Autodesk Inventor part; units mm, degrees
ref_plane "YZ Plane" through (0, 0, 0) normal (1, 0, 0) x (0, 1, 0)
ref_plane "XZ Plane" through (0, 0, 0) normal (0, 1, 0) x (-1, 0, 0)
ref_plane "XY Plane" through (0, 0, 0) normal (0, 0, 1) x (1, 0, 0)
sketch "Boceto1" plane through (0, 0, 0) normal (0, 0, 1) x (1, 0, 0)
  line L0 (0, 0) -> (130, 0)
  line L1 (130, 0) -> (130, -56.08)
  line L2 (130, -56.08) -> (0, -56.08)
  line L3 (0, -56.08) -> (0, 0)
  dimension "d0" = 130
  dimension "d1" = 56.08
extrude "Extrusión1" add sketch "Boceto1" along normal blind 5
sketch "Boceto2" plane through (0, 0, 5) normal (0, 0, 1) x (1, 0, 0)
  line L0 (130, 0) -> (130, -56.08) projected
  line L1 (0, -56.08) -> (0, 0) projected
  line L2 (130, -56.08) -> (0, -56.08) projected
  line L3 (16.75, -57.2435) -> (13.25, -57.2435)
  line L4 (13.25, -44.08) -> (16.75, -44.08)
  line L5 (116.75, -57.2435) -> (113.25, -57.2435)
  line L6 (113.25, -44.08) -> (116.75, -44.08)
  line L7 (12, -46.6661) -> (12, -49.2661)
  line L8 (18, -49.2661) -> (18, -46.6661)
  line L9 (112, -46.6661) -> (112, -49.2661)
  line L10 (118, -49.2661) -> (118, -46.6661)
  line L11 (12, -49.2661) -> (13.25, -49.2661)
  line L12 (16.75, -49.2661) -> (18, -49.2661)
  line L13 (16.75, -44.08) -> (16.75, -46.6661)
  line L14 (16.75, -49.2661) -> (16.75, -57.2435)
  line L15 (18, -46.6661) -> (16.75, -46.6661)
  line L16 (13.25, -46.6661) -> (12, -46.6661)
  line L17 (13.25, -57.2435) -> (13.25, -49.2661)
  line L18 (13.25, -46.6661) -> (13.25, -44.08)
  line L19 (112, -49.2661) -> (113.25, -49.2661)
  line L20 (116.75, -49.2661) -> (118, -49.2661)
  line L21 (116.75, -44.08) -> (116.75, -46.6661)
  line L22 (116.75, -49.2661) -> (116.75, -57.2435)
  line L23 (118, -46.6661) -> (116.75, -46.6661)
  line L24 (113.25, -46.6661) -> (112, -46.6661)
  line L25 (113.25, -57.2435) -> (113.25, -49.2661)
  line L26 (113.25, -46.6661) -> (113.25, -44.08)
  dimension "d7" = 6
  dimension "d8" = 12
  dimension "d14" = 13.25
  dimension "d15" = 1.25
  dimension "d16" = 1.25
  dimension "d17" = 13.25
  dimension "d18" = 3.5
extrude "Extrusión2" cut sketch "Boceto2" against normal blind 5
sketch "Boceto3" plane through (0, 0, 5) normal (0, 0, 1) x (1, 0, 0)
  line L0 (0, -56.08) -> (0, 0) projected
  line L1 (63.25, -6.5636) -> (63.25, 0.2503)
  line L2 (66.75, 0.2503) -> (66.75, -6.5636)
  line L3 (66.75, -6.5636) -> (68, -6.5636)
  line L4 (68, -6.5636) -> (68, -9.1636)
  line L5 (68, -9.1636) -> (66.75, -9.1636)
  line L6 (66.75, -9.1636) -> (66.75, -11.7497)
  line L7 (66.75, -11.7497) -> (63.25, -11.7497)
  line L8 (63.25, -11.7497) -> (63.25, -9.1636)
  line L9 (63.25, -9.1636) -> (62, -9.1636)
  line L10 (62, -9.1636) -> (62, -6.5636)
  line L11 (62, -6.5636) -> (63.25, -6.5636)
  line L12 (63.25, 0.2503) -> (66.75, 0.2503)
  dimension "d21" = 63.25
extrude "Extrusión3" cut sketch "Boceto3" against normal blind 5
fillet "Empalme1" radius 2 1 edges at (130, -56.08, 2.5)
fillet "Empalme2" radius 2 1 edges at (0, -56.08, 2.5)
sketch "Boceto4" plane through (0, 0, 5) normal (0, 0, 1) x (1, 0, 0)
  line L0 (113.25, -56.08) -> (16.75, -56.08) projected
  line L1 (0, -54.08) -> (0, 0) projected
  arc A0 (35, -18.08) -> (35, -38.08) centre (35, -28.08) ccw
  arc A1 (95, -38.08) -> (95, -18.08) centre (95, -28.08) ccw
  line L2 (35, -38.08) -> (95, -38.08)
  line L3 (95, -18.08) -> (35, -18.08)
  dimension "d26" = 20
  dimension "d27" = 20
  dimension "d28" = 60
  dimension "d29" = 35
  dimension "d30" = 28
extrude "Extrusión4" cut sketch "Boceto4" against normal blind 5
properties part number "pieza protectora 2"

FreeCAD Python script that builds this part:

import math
import FreeCAD as App
import Part
import Sketcher
from FreeCAD import Vector
Q = App.Units.Quantity


def edges_at(feature, points):
    """Names of the edges that pass closest to the given points."""
    edges = feature.Shape.Edges
    near = lambda p: min(range(len(edges)), key=lambda i: edges[i].distToShape(Part.Vertex(*p))[0])
    return sorted({f"Edge{near(p) + 1}" for p in points})

doc = App.newDocument("Part")
body = doc.addObject("PartDesign::Body", "Body")

# Sketch on XY plane
sketch1 = body.newObject("Sketcher::SketchObject", "Sketch")
sketch1.AttachmentSupport = (doc.getObject("XY_Plane"), [""])
sketch1.MapMode = "FlatFace"
sketch1.addGeometry([
    Part.LineSegment(Vector(130, 0, 0), Vector(0, 0, 0)),
    Part.LineSegment(Vector(0, 0, 0), Vector(0, -56, 0)),
    Part.LineSegment(Vector(0, -56, 0), Vector(130, -56, 0)),
    Part.LineSegment(Vector(130, -56, 0), Vector(130, 0, 0)),
], False)
sketch1.addConstraint([
    Sketcher.Constraint("Coincident", 0, 2, 1, 1),
    Sketcher.Constraint("Coincident", 1, 2, 2, 1),
    Sketcher.Constraint("Coincident", 2, 2, 3, 1),
    Sketcher.Constraint("Coincident", 3, 2, 0, 1),
    Sketcher.Constraint("Horizontal", 0),
    Sketcher.Constraint("Vertical", 1),
    Sketcher.Constraint("Horizontal", 2),
    Sketcher.Constraint("Vertical", 3),
    Sketcher.Constraint("Coincident", 0, 2, -1, 1),
    Sketcher.Constraint("DistanceX", 0, 2, 0, 1, Q("130 mm")),
    Sketcher.Constraint("DistanceY", 1, 2, 1, 1, Q("56.08 mm")),
])
pad1 = body.newObject("PartDesign::Pad", "Pad")
pad1.Profile = sketch1
pad1.Length = 5

# Sketch on XY plane
sketch2 = body.newObject("Sketcher::SketchObject", "Sketch001")
sketch2.AttachmentSupport = (doc.getObject("XY_Plane"), [""])
sketch2.MapMode = "FlatFace"
sketch2.AttachmentOffset = App.Placement(Vector(0, 0, 5), App.Rotation())
sketch2.addGeometry([
    Part.LineSegment(Vector(116.8, -57.2, 0), Vector(116.8, -49.3, 0)),  # 0
    Part.LineSegment(Vector(116.8, -49.3, 0), Vector(118, -49.3, 0)),  # 1
    Part.LineSegment(Vector(118, -49.3, 0), Vector(118, -46.7, 0)),  # 2
    Part.LineSegment(Vector(118, -46.7, 0), Vector(116.8, -46.7, 0)),  # 3
    Part.LineSegment(Vector(116.8, -46.7, 0), Vector(116.8, -44.1, 0)),  # 4
    Part.LineSegment(Vector(116.8, -44.1, 0), Vector(113.2, -44.1, 0)),  # 5
    Part.LineSegment(Vector(113.2, -44.1, 0), Vector(113.2, -46.7, 0)),  # 6
    Part.LineSegment(Vector(113.2, -46.7, 0), Vector(112, -46.7, 0)),  # 7
    Part.LineSegment(Vector(112, -46.7, 0), Vector(112, -49.3, 0)),  # 8
    Part.LineSegment(Vector(112, -49.3, 0), Vector(113.2, -49.3, 0)),  # 9
    Part.LineSegment(Vector(113.2, -49.3, 0), Vector(113.2, -57.2, 0)),  # 10
    Part.LineSegment(Vector(113.2, -57.2, 0), Vector(116.8, -57.2, 0)),  # 11
    Part.LineSegment(Vector(16.8, -57.2, 0), Vector(16.8, -49.3, 0)),  # 12
    Part.LineSegment(Vector(16.8, -49.3, 0), Vector(18, -49.3, 0)),  # 13
    Part.LineSegment(Vector(18, -49.3, 0), Vector(18, -46.7, 0)),  # 14
    Part.LineSegment(Vector(18, -46.7, 0), Vector(16.8, -46.7, 0)),  # 15
    Part.LineSegment(Vector(16.8, -46.7, 0), Vector(16.8, -44.1, 0)),  # 16
    Part.LineSegment(Vector(16.8, -44.1, 0), Vector(13.2, -44.1, 0)),  # 17
    Part.LineSegment(Vector(13.2, -44.1, 0), Vector(13.2, -46.7, 0)),  # 18
    Part.LineSegment(Vector(13.2, -46.7, 0), Vector(12, -46.7, 0)),  # 19
    Part.LineSegment(Vector(12, -46.7, 0), Vector(12, -49.3, 0)),  # 20
    Part.LineSegment(Vector(12, -49.3, 0), Vector(13.2, -49.3, 0)),  # 21
    Part.LineSegment(Vector(13.2, -49.3, 0), Vector(13.2, -57.2, 0)),  # 22
    Part.LineSegment(Vector(13.2, -57.2, 0), Vector(16.8, -57.2, 0)),  # 23
], False)
sketch2.addConstraint([
    Sketcher.Constraint("Coincident", 0, 2, 1, 1),
    Sketcher.Constraint("Coincident", 1, 2, 2, 1),
    Sketcher.Constraint("Coincident", 2, 2, 3, 1),
    Sketcher.Constraint("Coincident", 3, 2, 4, 1),
    Sketcher.Constraint("Coincident", 4, 2, 5, 1),
    Sketcher.Constraint("Coincident", 5, 2, 6, 1),
    Sketcher.Constraint("Coincident", 6, 2, 7, 1),
    Sketcher.Constraint("Coincident", 7, 2, 8, 1),
    Sketcher.Constraint("Coincident", 8, 2, 9, 1),
    Sketcher.Constraint("Coincident", 9, 2, 10, 1),
    Sketcher.Constraint("Coincident", 10, 2, 11, 1),
    Sketcher.Constraint("Coincident", 11, 2, 0, 1),
    Sketcher.Constraint("Coincident", 12, 2, 13, 1),
    Sketcher.Constraint("Coincident", 13, 2, 14, 1),
    Sketcher.Constraint("Coincident", 14, 2, 15, 1),
    Sketcher.Constraint("Coincident", 15, 2, 16, 1),
    Sketcher.Constraint("Coincident", 16, 2, 17, 1),
    Sketcher.Constraint("Coincident", 17, 2, 18, 1),
    Sketcher.Constraint("Coincident", 18, 2, 19, 1),
    Sketcher.Constraint("Coincident", 19, 2, 20, 1),
    Sketcher.Constraint("Coincident", 20, 2, 21, 1),
    Sketcher.Constraint("Coincident", 21, 2, 22, 1),
    Sketcher.Constraint("Coincident", 22, 2, 23, 1),
    Sketcher.Constraint("Coincident", 23, 2, 12, 1),
    Sketcher.Constraint("Vertical", 0),
    Sketcher.Constraint("Horizontal", 1),
    Sketcher.Constraint("Vertical", 2),
    Sketcher.Constraint("Horizontal", 3),
    Sketcher.Constraint("Vertical", 4),
    Sketcher.Constraint("Horizontal", 5),
    Sketcher.Constraint("Vertical", 6),
    Sketcher.Constraint("Horizontal", 7),
    Sketcher.Constraint("Vertical", 8),
    Sketcher.Constraint("Horizontal", 9),
    Sketcher.Constraint("Vertical", 10),
    Sketcher.Constraint("Horizontal", 11),
    Sketcher.Constraint("Vertical", 12),
    Sketcher.Constraint("Horizontal", 13),
    Sketcher.Constraint("Vertical", 14),
    Sketcher.Constraint("Horizontal", 15),
    Sketcher.Constraint("Vertical", 16),
    Sketcher.Constraint("Horizontal", 17),
    Sketcher.Constraint("Vertical", 18),
    Sketcher.Constraint("Horizontal", 19),
    Sketcher.Constraint("Vertical", 20),
    Sketcher.Constraint("Horizontal", 21),
    Sketcher.Constraint("Vertical", 22),
    Sketcher.Constraint("Horizontal", 23),
    Sketcher.Constraint("Horizontal", 3, 2, 6, 2),
    Sketcher.Constraint("Horizontal", 1, 2, 8, 2),
    Sketcher.Constraint("Horizontal", 9, 2, 12, 2),
    Sketcher.Constraint("Horizontal", 7, 2, 14, 2),
    Sketcher.Constraint("Horizontal", 5, 2, 16, 2),
    Sketcher.Constraint("Horizontal", 15, 2, 18, 2),
    Sketcher.Constraint("Horizontal", 13, 2, 20, 2),
    Sketcher.Constraint("Horizontal", 11, 2, 22, 2),
    Sketcher.Constraint("Vertical", 0, 2, 3, 2),
    Sketcher.Constraint("Vertical", 6, 2, 9, 2),
    Sketcher.Constraint("Vertical", 12, 2, 15, 2),
    Sketcher.Constraint("Vertical", 18, 2, 21, 2),
    Sketcher.Constraint("Equal", 3, 7),
    Sketcher.Constraint("Equal", 9, 13),
    Sketcher.Constraint("Equal", 11, 17),
    Sketcher.Constraint("Equal", 15, 19),
    Sketcher.Constraint("DistanceX", 5, 2, 5, 1, Q("3.5 mm")),
    Sketcher.Constraint("DistanceX", -1, 1, 19, 2, Q("12 mm")),
    Sketcher.Constraint("DistanceX", 1, 1, 1, 2, Q("1.25 mm")),
    Sketcher.Constraint("DistanceY", 2, 1, 2, 2, Q("2.6 mm")),
    Sketcher.Constraint("DistanceX", -1, 1, 1, 2, Q("118 mm")),
    Sketcher.Constraint("DistanceY", 4, 1, 4, 2, Q("2.586 mm")),
    Sketcher.Constraint("DistanceY", 4, 2, -1, 1, Q("44.08 mm")),
    Sketcher.Constraint("DistanceY", 0, 1, 0, 2, Q("7.9774 mm")),
])
pocket1 = body.newObject("PartDesign::Pocket", "Pocket")
pocket1.Profile = sketch2
pocket1.Length = 5

# Sketch on XY plane
sketch3 = body.newObject("Sketcher::SketchObject", "Sketch002")
sketch3.AttachmentSupport = (doc.getObject("XY_Plane"), [""])
sketch3.MapMode = "FlatFace"
sketch3.AttachmentOffset = App.Placement(Vector(0, 0, 5), App.Rotation())
sketch3.addGeometry([
    Part.LineSegment(Vector(63.2, 0.3, 0), Vector(63.2, -6.6, 0)),  # 0
    Part.LineSegment(Vector(63.2, -6.6, 0), Vector(62, -6.6, 0)),  # 1
    Part.LineSegment(Vector(62, -6.6, 0), Vector(62, -9.2, 0)),  # 2
    Part.LineSegment(Vector(62, -9.2, 0), Vector(63.2, -9.2, 0)),  # 3
    Part.LineSegment(Vector(63.2, -9.2, 0), Vector(63.2, -11.7, 0)),  # 4
    Part.LineSegment(Vector(63.2, -11.7, 0), Vector(66.8, -11.7, 0)),  # 5
    Part.LineSegment(Vector(66.8, -11.7, 0), Vector(66.8, -9.2, 0)),  # 6
    Part.LineSegment(Vector(66.8, -9.2, 0), Vector(68, -9.2, 0)),  # 7
    Part.LineSegment(Vector(68, -9.2, 0), Vector(68, -6.6, 0)),  # 8
    Part.LineSegment(Vector(68, -6.6, 0), Vector(66.8, -6.6, 0)),  # 9
    Part.LineSegment(Vector(66.8, -6.6, 0), Vector(66.8, 0.3, 0)),  # 10
    Part.LineSegment(Vector(66.8, 0.3, 0), Vector(63.2, 0.3, 0)),  # 11
], False)
sketch3.addConstraint([
    Sketcher.Constraint("Coincident", 0, 2, 1, 1),
    Sketcher.Constraint("Coincident", 1, 2, 2, 1),
    Sketcher.Constraint("Coincident", 2, 2, 3, 1),
    Sketcher.Constraint("Coincident", 3, 2, 4, 1),
    Sketcher.Constraint("Coincident", 4, 2, 5, 1),
    Sketcher.Constraint("Coincident", 5, 2, 6, 1),
    Sketcher.Constraint("Coincident", 6, 2, 7, 1),
    Sketcher.Constraint("Coincident", 7, 2, 8, 1),
    Sketcher.Constraint("Coincident", 8, 2, 9, 1),
    Sketcher.Constraint("Coincident", 9, 2, 10, 1),
    Sketcher.Constraint("Coincident", 10, 2, 11, 1),
    Sketcher.Constraint("Coincident", 11, 2, 0, 1),
    Sketcher.Constraint("Vertical", 0),
    Sketcher.Constraint("Horizontal", 1),
    Sketcher.Constraint("Vertical", 2),
    Sketcher.Constraint("Horizontal", 3),
    Sketcher.Constraint("Vertical", 4),
    Sketcher.Constraint("Horizontal", 5),
    Sketcher.Constraint("Vertical", 6),
    Sketcher.Constraint("Horizontal", 7),
    Sketcher.Constraint("Vertical", 8),
    Sketcher.Constraint("Horizontal", 9),
    Sketcher.Constraint("Vertical", 10),
    Sketcher.Constraint("Horizontal", 11),
    Sketcher.Constraint("Horizontal", 3, 2, 6, 2),
    Sketcher.Constraint("Horizontal", 1, 2, 8, 2),
    Sketcher.Constraint("Vertical", 0, 2, 3, 2),
    Sketcher.Constraint("Vertical", 6, 2, 9, 2),
    Sketcher.Constraint("Equal", 3, 7),
    Sketcher.Constraint("DistanceX", -1, 1, 0, 2, Q("63.25 mm")),
    Sketcher.Constraint("DistanceX", 5, 1, 5, 2, Q("3.5 mm")),
    Sketcher.Constraint("DistanceY", 2, 2, 2, 1, Q("2.6 mm")),
    Sketcher.Constraint("DistanceX", -1, 1, 1, 2, Q("62 mm")),
    Sketcher.Constraint("DistanceY", 0, 2, 0, 1, Q("6.814 mm")),
    Sketcher.Constraint("DistanceY", 4, 2, 4, 1, Q("2.586 mm")),
    Sketcher.Constraint("DistanceY", 0, 2, -1, 1, Q("6.5636 mm")),
])
pocket2 = body.newObject("PartDesign::Pocket", "Pocket001")
pocket2.Profile = sketch3
pocket2.Length = 5
doc.recompute()

fillet = body.newObject("PartDesign::Fillet", "Fillet")
fillet.Base = (pocket2, edges_at(pocket2, [(130, -56.08, 2.5)]))
fillet.Radius = 2
doc.recompute()

fillet2 = body.newObject("PartDesign::Fillet", "Fillet001")
fillet2.Base = (fillet, edges_at(fillet, [(0, -56.08, 2.5)]))
fillet2.Radius = 2

# Sketch on XY plane
sketch4 = body.newObject("Sketcher::SketchObject", "Sketch003")
sketch4.AttachmentSupport = (doc.getObject("XY_Plane"), [""])
sketch4.MapMode = "FlatFace"
sketch4.AttachmentOffset = App.Placement(Vector(0, 0, 5), App.Rotation())
sketch4.addGeometry([
    Part.LineSegment(Vector(95, -18, 0), Vector(35, -18, 0)),
    Part.ArcOfCircle(Part.Circle(Vector(35, -28, 0), Vector(0, 0, 1), 10), math.radians(90), math.radians(270)),
    Part.LineSegment(Vector(35, -38, 0), Vector(95, -38, 0)),
    Part.ArcOfCircle(Part.Circle(Vector(95, -28, 0), Vector(0, 0, 1), 10), math.radians(-90), math.radians(90)),
], False)
sketch4.addConstraint([
    Sketcher.Constraint("Tangent", 0, 2, 1, 1),
    Sketcher.Constraint("Tangent", 1, 2, 2, 1),
    Sketcher.Constraint("Tangent", 2, 2, 3, 1),
    Sketcher.Constraint("Tangent", 3, 2, 0, 1),
    Sketcher.Constraint("Horizontal", 0),
    Sketcher.Constraint("Horizontal", 2),
    Sketcher.Constraint("Radius", 1, Q("10 mm")),
    Sketcher.Constraint("DistanceX", 0, 2, 0, 1, Q("60 mm")),
    Sketcher.Constraint("DistanceX", -1, 1, 1, 3, Q("35 mm")),
    Sketcher.Constraint("DistanceY", 1, 3, -1, 1, Q("28.08 mm")),
])
pocket3 = body.newObject("PartDesign::Pocket", "Pocket002")
pocket3.Profile = sketch4
pocket3.Length = 5

doc.recompute()
